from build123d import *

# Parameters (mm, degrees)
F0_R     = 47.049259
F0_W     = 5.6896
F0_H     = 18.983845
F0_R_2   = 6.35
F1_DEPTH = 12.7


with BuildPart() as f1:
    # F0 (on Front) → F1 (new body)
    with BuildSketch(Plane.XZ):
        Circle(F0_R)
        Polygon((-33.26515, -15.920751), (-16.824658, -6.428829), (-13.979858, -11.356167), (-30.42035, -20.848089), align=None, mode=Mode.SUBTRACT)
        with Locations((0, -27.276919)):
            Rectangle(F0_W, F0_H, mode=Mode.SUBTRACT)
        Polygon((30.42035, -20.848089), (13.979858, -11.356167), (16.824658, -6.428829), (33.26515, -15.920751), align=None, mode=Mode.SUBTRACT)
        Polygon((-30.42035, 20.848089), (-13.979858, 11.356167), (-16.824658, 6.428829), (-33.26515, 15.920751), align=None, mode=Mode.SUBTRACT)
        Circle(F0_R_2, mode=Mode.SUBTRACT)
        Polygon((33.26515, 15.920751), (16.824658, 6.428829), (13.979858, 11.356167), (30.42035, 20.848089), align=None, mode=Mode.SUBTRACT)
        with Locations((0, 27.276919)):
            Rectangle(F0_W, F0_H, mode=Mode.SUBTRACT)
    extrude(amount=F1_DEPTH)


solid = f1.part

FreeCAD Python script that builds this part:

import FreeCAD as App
import Part
import Sketcher
Q = App.Units.Quantity


def add_polygon(sketch, points):
    """Adds a closed chain of lines whose ends are joined by coincident constraints."""
    first, n = sketch.GeometryCount, len(points)
    for a, b in zip(points, points[1:] + points[:1]):
        sketch.addGeometry(Part.LineSegment(App.Vector(*a, 0), App.Vector(*b, 0)), False)
    for i in range(n):
        sketch.addConstraint(Sketcher.Constraint("Coincident", first + i, 2, first + (i + 1) % n, 1))

doc = App.newDocument("Part")
body = doc.addObject("PartDesign::Body", "Body")

# Sketch on XZ plane
sketch1 = body.newObject("Sketcher::SketchObject", "Sketch")
sketch1.AttachmentSupport = (doc.getObject("XZ_Plane"), [""])
sketch1.MapMode = "FlatFace"
sketch1.addGeometry(Part.Circle(App.Vector(0, 0, 0), App.Vector(0, 0, 1), 47.049259), False)  # 0
add_polygon(sketch1, [(2.8448, -36.768842), (-2.8448, -36.768842), (-2.8448, -17.784996), (2.8448, -17.784996)])  # lines 1-4
add_polygon(sketch1, [(-30.42035, -20.848089), (-33.26515, -15.920751), (-16.824658, -6.428829), (-13.979858, -11.356167)])  # lines 5-8
add_polygon(sketch1, [(33.26515, -15.920751), (30.42035, -20.848089), (13.979858, -11.356167), (16.824658, -6.428829)])  # lines 9-12
add_polygon(sketch1, [(-33.26515, 15.920751), (-30.42035, 20.848089), (-13.979858, 11.356167), (-16.824658, 6.428829)])  # lines 13-16
sketch1.addGeometry(Part.Circle(App.Vector(0, 0, 0), App.Vector(0, 0, 1), 6.35), False)  # 17
add_polygon(sketch1, [(2.8448, 17.784996), (-2.8448, 17.784996), (-2.8448, 36.768842), (2.8448, 36.768842)])  # lines 18-21
add_polygon(sketch1, [(30.42035, 20.848089), (33.26515, 15.920751), (16.824658, 6.428829), (13.979858, 11.356167)])  # lines 22-25
sketch1.addConstraint([
    Sketcher.Constraint("Horizontal", 1),
    Sketcher.Constraint("Vertical", 2),
    Sketcher.Constraint("Horizontal", 3),
    Sketcher.Constraint("Vertical", 4),
    Sketcher.Constraint("Horizontal", 18),
    Sketcher.Constraint("Vertical", 19),
    Sketcher.Constraint("Horizontal", 20),
    Sketcher.Constraint("Vertical", 21),
    Sketcher.Constraint("Coincident", 0, 3, -1, 1),
    Sketcher.Constraint("Coincident", 17, 3, -1, 1),
    Sketcher.Constraint("Symmetric", 9, 2, 13, 2, -1, 1),
    Sketcher.Constraint("Symmetric", 10, 2, 14, 2, -1, 1),
    Sketcher.Constraint("Symmetric", 11, 2, 15, 2, -1, 1),
    Sketcher.Constraint("Symmetric", 12, 2, 16, 2, -1, 1),
    Sketcher.Constraint("Symmetric", 3, 2, 18, 2, -1, 1),
    Sketcher.Constraint("Symmetric", 1, 2, 20, 2, -1, 1),
    Sketcher.Constraint("Symmetric", 5, 2, 22, 2, -1, 1),
    Sketcher.Constraint("Symmetric", 6, 2, 23, 2, -1, 1),
    Sketcher.Constraint("Symmetric", 7, 2, 24, 2, -1, 1),
    Sketcher.Constraint("Symmetric", 8, 2, 25, 2, -1, 1),
    Sketcher.Constraint("Symmetric", 8, 2, 9, 2, -2),
    Sketcher.Constraint("Symmetric", 7, 2, 10, 2, -2),
    Sketcher.Constraint("Symmetric", 6, 2, 11, 2, -2),
    Sketcher.Constraint("Symmetric", 5, 2, 12, 2, -2),
    Sketcher.Constraint("Perpendicular", 5, 6),
    Sketcher.Constraint("Perpendicular", 6, 7),
    Sketcher.Constraint("Perpendicular", 7, 8),
    Sketcher.Constraint("Vertical", 2, 2, 18, 2),
    Sketcher.Constraint("Diameter", 17, Q("0.5 in")),
    Sketcher.Constraint("Angle", 5, Q("120.000001 deg")),
    Sketcher.Constraint("DistanceX", 1, 2, 1, 1, Q("0.224 in")),
    Sketcher.Constraint("Distance", 5, Q("0.224 in")),
    Sketcher.Constraint("Diameter", 0, Q("94.098518 mm")),
    Sketcher.Constraint("DistanceY", 5, 2, 16, 2, Q("31.841502 mm")),
    Sketcher.Constraint("DistanceY", 2, 1, 2, 2, Q("18.983845 mm")),
    Sketcher.Constraint("DistanceY", 1, 2, -1, 1, Q("36.768842 mm")),
    Sketcher.Constraint("DistanceX", 5, 2, -1, 1, Q("33.26515 mm")),
    Sketcher.Constraint("DistanceY", 6, 2, -1, 1, Q("6.428829 mm")),
])
pad1 = body.newObject("PartDesign::Pad", "Pad")
pad1.Profile = sketch1
pad1.Length = Q("0.5 in")

doc.recompute()
